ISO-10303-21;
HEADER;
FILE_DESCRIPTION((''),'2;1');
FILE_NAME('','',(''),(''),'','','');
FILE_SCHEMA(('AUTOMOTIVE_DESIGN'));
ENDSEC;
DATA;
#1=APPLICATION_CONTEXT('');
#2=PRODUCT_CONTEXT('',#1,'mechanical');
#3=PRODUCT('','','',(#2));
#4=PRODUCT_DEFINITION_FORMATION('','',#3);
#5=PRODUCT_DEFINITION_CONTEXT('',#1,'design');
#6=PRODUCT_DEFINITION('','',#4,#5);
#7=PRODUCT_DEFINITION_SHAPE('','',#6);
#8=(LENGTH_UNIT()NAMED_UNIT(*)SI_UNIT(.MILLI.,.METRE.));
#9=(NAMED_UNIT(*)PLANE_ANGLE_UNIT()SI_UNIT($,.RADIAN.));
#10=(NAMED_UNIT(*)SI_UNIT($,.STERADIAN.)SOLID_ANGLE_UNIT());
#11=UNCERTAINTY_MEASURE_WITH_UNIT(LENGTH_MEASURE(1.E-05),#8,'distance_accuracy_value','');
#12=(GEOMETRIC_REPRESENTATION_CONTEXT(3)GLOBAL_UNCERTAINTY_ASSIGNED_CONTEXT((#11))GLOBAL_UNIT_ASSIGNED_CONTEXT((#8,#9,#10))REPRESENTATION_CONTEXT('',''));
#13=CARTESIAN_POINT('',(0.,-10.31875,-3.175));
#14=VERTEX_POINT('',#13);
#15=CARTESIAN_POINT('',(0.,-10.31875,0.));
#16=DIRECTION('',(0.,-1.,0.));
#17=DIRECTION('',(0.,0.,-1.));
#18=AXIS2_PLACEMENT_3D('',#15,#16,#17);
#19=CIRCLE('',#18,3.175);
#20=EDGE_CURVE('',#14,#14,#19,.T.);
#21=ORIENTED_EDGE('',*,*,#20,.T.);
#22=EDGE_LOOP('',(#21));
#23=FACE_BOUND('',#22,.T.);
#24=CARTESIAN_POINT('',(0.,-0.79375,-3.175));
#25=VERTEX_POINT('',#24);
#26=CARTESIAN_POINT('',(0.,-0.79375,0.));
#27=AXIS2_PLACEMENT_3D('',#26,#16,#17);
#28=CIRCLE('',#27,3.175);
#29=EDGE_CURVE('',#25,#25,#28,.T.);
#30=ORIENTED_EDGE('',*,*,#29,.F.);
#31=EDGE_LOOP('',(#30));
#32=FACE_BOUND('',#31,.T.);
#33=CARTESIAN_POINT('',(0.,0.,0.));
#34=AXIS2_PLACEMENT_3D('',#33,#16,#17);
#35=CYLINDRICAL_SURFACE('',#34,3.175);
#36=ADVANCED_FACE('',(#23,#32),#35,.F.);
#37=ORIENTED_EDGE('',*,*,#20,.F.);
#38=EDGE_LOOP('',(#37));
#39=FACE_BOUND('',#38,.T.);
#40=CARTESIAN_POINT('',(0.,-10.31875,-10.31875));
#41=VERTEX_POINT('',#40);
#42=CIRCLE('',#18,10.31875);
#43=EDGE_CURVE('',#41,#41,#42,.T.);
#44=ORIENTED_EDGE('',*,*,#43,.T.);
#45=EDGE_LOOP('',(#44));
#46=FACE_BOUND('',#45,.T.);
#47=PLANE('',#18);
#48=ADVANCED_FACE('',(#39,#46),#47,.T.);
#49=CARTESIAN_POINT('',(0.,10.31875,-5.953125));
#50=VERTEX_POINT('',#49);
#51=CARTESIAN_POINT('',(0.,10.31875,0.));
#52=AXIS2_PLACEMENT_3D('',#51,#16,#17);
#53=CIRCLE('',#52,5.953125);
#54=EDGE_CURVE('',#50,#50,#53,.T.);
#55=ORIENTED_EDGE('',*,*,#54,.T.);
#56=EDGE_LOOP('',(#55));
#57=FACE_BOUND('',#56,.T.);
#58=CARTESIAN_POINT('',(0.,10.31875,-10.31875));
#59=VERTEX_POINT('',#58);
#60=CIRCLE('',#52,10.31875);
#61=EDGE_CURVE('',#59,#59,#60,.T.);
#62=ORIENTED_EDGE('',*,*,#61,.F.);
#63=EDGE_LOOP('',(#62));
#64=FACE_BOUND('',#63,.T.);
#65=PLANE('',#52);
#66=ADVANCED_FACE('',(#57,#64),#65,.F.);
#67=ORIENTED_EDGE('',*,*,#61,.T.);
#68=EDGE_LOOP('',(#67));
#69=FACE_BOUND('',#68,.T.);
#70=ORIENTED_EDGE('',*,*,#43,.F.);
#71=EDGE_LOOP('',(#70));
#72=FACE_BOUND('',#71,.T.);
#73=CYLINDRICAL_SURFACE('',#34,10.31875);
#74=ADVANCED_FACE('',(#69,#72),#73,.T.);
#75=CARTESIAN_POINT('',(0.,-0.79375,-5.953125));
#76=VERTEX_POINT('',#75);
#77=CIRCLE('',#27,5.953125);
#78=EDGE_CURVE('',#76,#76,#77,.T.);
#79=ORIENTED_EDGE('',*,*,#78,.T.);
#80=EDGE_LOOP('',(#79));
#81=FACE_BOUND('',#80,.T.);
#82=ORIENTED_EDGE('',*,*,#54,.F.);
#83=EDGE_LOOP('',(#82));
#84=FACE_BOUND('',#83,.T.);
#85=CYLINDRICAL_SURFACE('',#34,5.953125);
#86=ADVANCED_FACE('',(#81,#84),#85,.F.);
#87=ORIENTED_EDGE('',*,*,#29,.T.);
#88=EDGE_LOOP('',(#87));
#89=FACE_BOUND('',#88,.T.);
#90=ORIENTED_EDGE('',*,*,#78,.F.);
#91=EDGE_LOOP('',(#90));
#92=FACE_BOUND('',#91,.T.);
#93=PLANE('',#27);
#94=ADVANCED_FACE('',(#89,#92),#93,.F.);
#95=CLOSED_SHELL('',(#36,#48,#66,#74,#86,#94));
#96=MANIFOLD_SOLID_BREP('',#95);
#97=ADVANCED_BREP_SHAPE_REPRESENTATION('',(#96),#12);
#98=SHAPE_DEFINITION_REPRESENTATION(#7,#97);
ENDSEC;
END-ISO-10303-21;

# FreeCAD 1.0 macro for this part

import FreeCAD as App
import Part
import Sketcher

V = App.Vector
Q = App.Units.Quantity

doc = App.newDocument("Part")
params = doc.addObject("Spreadsheet::Sheet", "Params")
for row, (alias, value) in enumerate([
    ("sketch1_width", "0.28125 in"),
    ("sketch1_width2", "0.171875 in"),
    ("sketch1_height", "0.375 in"),
    ("sketch1_height2", "0.8125 in"),
    ("revolution_angle", "360 deg"),
], start=1):
    params.set(f"A{row}", alias)
    params.set(f"B{row}", "=" + value)
    params.setAlias(f"B{row}", alias)

body = doc.addObject("PartDesign::Body", "Body")

# Sketch on XY plane
sketch1 = body.newObject("Sketcher::SketchObject", "Sketch")
sketch1.AttachmentSupport = (doc.getObject("XY_Plane"), [""])
sketch1.MapMode = "FlatFace"
sketch1.addGeometry(Part.LineSegment(V(3.2, -0.8, 0), V(3.2, -10.3, 0)), False)
sketch1.addGeometry(Part.LineSegment(V(3.2, -10.3, 0), V(10.3, -10.3, 0)), False)
sketch1.addGeometry(Part.LineSegment(V(10.3, -10.3, 0), V(10.3, 10.3, 0)), False)
sketch1.addGeometry(Part.LineSegment(V(10.3, 10.3, 0), V(6, 10.3, 0)), False)
sketch1.addGeometry(Part.LineSegment(V(6, 10.3, 0), V(6, -0.8, 0)), False)
sketch1.addGeometry(Part.LineSegment(V(6, -0.8, 0), V(3.2, -0.8, 0)), False)
sketch1.addConstraint(Sketcher.Constraint("Coincident", 0, 2, 1, 1))
sketch1.addConstraint(Sketcher.Constraint("Coincident", 1, 2, 2, 1))
sketch1.addConstraint(Sketcher.Constraint("Coincident", 2, 2, 3, 1))
sketch1.addConstraint(Sketcher.Constraint("Coincident", 3, 2, 4, 1))
sketch1.addConstraint(Sketcher.Constraint("Coincident", 4, 2, 5, 1))
sketch1.addConstraint(Sketcher.Constraint("Coincident", 5, 2, 0, 1))
sketch1.addConstraint(Sketcher.Constraint("Vertical", 0))
sketch1.addConstraint(Sketcher.Constraint("Horizontal", 1))
sketch1.addConstraint(Sketcher.Constraint("Vertical", 2))
sketch1.addConstraint(Sketcher.Constraint("Horizontal", 3))
sketch1.addConstraint(Sketcher.Constraint("Vertical", 4))
sketch1.addConstraint(Sketcher.Constraint("Horizontal", 5))
sketch1.addConstraint(Sketcher.Constraint("DistanceX", 1, 1, 1, 2, Q("0.28125 in")))
sketch1.addConstraint(Sketcher.Constraint("DistanceX", 3, 2, 3, 1, Q("0.171875 in")))
sketch1.addConstraint(Sketcher.Constraint("DistanceY", 0, 2, 0, 1, Q("0.375 in")))
sketch1.addConstraint(Sketcher.Constraint("DistanceY", 2, 1, 2, 2, Q("0.8125 in")))
sketch1.addConstraint(Sketcher.Constraint("DistanceX", -1, 1, 0, 2, Q("0.125 in")))
sketch1.addConstraint(Sketcher.Constraint("DistanceY", 0, 2, -1, 1, Q("0.40625 in")))
sketch1.setExpression("Constraints[12]", "Params.sketch1_width")
sketch1.setExpression("Constraints[13]", "Params.sketch1_width2")
sketch1.setExpression("Constraints[14]", "Params.sketch1_height")
sketch1.setExpression("Constraints[15]", "Params.sketch1_height2")
revolution = body.newObject("PartDesign::Revolution", "Revolution")
revolution.Profile = sketch1
revolution.ReferenceAxis = (sketch1, ["V_Axis"])
revolution.setExpression("Angle", "Params.revolution_angle")

doc.recompute()
